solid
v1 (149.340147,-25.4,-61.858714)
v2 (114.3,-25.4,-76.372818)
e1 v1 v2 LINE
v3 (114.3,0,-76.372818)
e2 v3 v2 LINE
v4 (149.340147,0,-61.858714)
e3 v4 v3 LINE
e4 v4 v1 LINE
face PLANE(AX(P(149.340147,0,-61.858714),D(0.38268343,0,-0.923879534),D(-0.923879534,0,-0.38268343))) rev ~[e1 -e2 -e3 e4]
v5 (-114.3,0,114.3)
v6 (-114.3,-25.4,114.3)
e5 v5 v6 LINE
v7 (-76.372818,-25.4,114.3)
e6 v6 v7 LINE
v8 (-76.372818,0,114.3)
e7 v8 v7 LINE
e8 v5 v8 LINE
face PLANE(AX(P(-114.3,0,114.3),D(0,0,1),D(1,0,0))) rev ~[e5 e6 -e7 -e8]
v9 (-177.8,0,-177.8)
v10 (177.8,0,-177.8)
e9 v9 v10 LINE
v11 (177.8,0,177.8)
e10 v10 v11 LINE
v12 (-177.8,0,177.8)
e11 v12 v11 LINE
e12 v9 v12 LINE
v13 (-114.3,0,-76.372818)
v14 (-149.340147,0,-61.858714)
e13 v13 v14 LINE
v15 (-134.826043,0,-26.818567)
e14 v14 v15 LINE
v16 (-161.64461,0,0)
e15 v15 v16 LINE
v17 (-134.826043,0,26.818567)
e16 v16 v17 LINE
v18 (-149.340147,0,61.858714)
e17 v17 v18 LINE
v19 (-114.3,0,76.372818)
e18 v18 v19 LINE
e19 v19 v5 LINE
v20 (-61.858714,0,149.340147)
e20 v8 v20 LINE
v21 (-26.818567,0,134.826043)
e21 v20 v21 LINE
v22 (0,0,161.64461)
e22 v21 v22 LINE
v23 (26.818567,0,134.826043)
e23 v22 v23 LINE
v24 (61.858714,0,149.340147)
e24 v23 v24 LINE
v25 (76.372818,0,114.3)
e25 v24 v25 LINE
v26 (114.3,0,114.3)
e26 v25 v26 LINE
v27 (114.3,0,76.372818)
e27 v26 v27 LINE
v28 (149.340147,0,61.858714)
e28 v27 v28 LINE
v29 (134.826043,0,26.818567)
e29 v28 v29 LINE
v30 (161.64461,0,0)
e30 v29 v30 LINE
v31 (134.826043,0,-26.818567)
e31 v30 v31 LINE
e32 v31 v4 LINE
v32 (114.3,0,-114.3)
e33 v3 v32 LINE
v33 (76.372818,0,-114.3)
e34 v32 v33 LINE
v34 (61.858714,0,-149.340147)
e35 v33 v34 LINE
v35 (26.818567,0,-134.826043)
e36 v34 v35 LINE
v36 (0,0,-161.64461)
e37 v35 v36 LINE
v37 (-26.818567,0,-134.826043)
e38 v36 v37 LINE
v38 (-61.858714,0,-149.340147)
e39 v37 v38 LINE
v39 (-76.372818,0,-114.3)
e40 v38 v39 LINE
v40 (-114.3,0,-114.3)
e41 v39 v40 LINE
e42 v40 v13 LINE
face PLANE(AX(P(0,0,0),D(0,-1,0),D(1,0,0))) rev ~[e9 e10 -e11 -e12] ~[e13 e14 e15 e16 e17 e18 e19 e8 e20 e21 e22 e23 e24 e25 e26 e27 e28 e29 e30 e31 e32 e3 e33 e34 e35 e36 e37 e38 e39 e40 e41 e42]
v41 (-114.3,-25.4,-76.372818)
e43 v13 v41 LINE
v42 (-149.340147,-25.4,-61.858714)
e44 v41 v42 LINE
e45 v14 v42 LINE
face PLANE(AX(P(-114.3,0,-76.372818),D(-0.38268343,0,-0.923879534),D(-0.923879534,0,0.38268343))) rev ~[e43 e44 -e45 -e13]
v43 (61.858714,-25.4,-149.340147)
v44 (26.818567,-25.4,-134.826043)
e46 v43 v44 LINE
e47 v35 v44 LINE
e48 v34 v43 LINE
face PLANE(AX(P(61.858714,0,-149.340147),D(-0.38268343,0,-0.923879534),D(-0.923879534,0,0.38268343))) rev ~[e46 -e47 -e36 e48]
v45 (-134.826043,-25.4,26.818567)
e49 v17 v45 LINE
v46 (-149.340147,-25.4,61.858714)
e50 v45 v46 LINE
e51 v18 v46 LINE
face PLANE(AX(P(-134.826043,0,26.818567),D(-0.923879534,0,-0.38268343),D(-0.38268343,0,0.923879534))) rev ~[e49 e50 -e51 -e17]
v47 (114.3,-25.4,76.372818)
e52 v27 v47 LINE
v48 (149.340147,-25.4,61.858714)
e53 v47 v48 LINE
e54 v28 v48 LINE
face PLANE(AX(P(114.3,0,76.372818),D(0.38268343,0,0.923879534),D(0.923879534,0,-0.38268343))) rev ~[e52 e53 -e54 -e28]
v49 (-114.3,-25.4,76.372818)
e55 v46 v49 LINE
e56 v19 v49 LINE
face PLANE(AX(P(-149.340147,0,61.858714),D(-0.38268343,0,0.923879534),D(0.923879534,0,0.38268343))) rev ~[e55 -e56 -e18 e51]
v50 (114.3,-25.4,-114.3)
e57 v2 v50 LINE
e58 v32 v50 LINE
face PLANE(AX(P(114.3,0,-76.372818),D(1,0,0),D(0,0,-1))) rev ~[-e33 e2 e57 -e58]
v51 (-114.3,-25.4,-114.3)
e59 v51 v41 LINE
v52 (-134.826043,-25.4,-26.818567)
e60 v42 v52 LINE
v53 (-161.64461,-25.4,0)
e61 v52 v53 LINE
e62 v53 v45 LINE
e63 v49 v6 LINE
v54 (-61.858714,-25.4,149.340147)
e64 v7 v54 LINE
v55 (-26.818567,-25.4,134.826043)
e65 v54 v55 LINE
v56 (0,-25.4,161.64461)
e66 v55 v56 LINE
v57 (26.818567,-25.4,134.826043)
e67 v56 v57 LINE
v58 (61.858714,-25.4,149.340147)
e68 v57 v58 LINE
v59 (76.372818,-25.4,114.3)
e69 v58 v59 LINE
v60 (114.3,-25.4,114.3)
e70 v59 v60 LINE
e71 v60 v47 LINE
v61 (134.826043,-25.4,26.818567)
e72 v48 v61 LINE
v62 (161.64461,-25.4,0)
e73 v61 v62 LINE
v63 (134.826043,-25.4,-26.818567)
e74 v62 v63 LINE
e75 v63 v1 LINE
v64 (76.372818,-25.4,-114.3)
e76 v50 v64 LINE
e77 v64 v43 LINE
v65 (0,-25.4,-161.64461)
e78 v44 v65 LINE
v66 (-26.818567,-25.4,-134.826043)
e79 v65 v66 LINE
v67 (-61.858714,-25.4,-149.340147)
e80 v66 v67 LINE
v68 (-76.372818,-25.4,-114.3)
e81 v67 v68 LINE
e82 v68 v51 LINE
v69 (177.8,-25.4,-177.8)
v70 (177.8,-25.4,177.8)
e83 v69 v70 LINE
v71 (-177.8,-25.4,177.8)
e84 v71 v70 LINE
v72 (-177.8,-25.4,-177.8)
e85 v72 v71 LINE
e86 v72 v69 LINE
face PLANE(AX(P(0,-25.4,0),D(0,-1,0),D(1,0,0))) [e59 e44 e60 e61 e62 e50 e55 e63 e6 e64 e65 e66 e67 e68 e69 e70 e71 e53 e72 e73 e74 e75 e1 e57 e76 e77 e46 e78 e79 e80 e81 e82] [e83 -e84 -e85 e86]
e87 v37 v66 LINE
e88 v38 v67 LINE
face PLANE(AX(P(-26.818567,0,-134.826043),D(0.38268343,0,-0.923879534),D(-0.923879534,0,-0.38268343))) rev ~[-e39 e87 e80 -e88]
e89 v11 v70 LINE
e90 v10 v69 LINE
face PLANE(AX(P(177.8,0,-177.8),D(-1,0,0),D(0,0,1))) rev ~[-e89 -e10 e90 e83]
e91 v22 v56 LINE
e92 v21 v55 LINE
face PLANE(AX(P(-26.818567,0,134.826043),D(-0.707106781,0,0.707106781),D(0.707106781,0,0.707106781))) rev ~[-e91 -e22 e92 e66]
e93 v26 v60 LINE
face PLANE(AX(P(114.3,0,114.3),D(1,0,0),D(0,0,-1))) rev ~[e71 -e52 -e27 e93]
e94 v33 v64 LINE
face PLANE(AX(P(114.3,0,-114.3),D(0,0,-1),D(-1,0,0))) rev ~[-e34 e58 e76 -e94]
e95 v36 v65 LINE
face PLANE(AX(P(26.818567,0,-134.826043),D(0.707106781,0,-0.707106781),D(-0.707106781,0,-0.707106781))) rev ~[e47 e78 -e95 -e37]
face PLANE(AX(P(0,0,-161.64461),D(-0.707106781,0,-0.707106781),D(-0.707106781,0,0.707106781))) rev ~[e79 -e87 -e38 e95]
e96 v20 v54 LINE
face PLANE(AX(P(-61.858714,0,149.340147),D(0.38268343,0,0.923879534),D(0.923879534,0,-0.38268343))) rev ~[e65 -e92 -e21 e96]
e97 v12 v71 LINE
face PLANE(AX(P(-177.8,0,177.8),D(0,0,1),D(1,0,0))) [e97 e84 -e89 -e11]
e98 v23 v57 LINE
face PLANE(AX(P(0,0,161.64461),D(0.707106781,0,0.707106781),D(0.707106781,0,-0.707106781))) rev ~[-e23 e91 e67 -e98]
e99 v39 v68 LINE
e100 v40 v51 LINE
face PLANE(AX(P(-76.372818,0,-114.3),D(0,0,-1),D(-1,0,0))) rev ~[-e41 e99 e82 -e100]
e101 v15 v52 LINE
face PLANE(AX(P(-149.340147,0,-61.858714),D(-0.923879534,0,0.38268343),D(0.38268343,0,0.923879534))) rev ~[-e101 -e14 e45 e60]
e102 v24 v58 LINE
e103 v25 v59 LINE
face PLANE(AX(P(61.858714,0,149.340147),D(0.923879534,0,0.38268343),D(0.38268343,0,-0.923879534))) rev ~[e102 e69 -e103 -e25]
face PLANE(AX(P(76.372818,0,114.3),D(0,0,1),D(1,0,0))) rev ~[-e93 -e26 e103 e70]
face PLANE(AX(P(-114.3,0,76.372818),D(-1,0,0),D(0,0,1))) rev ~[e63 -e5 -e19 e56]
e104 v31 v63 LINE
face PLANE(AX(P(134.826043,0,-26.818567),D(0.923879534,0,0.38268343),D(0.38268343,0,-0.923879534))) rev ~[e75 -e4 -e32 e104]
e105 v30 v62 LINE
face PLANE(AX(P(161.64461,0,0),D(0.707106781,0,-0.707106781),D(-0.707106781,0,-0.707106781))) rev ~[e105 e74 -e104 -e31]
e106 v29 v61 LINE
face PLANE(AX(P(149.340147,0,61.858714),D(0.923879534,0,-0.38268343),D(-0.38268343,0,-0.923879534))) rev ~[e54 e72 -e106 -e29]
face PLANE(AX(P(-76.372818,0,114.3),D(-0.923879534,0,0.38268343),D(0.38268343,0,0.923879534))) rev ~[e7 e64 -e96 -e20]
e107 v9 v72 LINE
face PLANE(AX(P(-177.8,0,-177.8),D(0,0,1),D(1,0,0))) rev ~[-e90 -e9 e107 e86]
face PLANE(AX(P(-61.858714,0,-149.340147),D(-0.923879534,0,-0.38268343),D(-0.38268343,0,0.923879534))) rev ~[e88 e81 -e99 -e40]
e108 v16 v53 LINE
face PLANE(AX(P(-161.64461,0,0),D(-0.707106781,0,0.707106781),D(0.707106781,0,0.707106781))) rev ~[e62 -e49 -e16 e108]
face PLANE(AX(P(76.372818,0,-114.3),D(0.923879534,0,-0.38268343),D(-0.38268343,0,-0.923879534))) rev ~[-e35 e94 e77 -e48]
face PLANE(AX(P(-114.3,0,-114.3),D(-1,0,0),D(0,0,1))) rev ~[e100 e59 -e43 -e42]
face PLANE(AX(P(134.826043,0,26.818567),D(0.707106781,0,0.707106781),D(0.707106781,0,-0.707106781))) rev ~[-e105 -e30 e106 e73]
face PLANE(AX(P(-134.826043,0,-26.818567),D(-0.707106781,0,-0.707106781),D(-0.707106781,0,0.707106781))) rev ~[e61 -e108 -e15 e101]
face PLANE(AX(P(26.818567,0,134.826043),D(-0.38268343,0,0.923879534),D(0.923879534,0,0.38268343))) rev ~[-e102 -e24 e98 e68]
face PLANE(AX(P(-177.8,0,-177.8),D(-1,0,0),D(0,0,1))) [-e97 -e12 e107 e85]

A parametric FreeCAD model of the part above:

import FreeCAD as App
import Part
import Sketcher

V = App.Vector
Q = App.Units.Quantity

doc = App.newDocument("Part")
body = doc.addObject("PartDesign::Body", "Body")

sketch1 = body.newObject("Sketcher::SketchObject", "Sketch")
sketch1.AttachmentSupport = (doc.getObject("XZ_Plane"), [""])
sketch1.MapMode = "FlatFace"
sketch1.addGeometry([
    Part.LineSegment(V(-178, 178, 0), V(-178, -178, 0)),
    Part.LineSegment(V(-178, -178, 0), V(178, -178, 0)),
    Part.LineSegment(V(178, -178, 0), V(178, 178, 0)),
    Part.LineSegment(V(178, 178, 0), V(-178, 178, 0)),
    Part.LineSegment(V(62, 149, 0), V(76, 114, 0)),
    Part.LineSegment(V(76, 114, 0), V(114, 114, 0)),
    Part.LineSegment(V(114, 114, 0), V(114, 76, 0)),
    Part.LineSegment(V(114, 76, 0), V(149, 62, 0)),
    Part.LineSegment(V(149, 62, 0), V(135, 27, 0)),
    Part.LineSegment(V(135, 27, 0), V(162, 0, 0)),
    Part.LineSegment(V(162, 0, 0), V(135, -27, 0)),
    Part.LineSegment(V(135, -27, 0), V(149, -62, 0)),
    Part.LineSegment(V(149, -62, 0), V(114, -76, 0)),
    Part.LineSegment(V(114, -76, 0), V(114, -114, 0)),
    Part.LineSegment(V(114, -114, 0), V(76, -114, 0)),
    Part.LineSegment(V(76, -114, 0), V(62, -149, 0)),
    Part.LineSegment(V(62, -149, 0), V(27, -135, 0)),
    Part.LineSegment(V(27, -135, 0), V(0, -162, 0)),
    Part.LineSegment(V(0, -162, 0), V(-27, -135, 0)),
    Part.LineSegment(V(-27, -135, 0), V(-62, -149, 0)),
    Part.LineSegment(V(-62, -149, 0), V(-76, -114, 0)),
    Part.LineSegment(V(-76, -114, 0), V(-114, -114, 0)),
    Part.LineSegment(V(-114, -114, 0), V(-114, -76, 0)),
    Part.LineSegment(V(-114, -76, 0), V(-149, -62, 0)),
    Part.LineSegment(V(-149, -62, 0), V(-135, -27, 0)),
    Part.LineSegment(V(-135, -27, 0), V(-162, 0, 0)),
    Part.LineSegment(V(-162, 0, 0), V(-135, 27, 0)),
    Part.LineSegment(V(-135, 27, 0), V(-149, 62, 0)),
    Part.LineSegment(V(-149, 62, 0), V(-114, 76, 0)),
    Part.LineSegment(V(-114, 76, 0), V(-114, 114, 0)),
    Part.LineSegment(V(-114, 114, 0), V(-76, 114, 0)),
    Part.LineSegment(V(-76, 114, 0), V(-62, 149, 0)),
    Part.LineSegment(V(-62, 149, 0), V(-27, 135, 0)),
    Part.LineSegment(V(-27, 135, 0), V(0, 162, 0)),
    Part.LineSegment(V(0, 162, 0), V(27, 135, 0)),
    Part.LineSegment(V(27, 135, 0), V(62, 149, 0)),
], False)
sketch1.addConstraint([
    Sketcher.Constraint("Coincident", 0, 2, 1, 1),
    Sketcher.Constraint("Coincident", 1, 2, 2, 1),
    Sketcher.Constraint("Coincident", 2, 2, 3, 1),
    Sketcher.Constraint("Coincident", 3, 2, 0, 1),
    Sketcher.Constraint("Coincident", 4, 2, 5, 1),
    Sketcher.Constraint("Coincident", 5, 2, 6, 1),
    Sketcher.Constraint("Coincident", 6, 2, 7, 1),
    Sketcher.Constraint("Coincident", 7, 2, 8, 1),
    Sketcher.Constraint("Coincident", 8, 2, 9, 1),
    Sketcher.Constraint("Coincident", 9, 2, 10, 1),
    Sketcher.Constraint("Coincident", 10, 2, 11, 1),
    Sketcher.Constraint("Coincident", 11, 2, 12, 1),
    Sketcher.Constraint("Coincident", 12, 2, 13, 1),
    Sketcher.Constraint("Coincident", 13, 2, 14, 1),
    Sketcher.Constraint("Coincident", 14, 2, 15, 1),
    Sketcher.Constraint("Coincident", 15, 2, 16, 1),
    Sketcher.Constraint("Coincident", 16, 2, 17, 1),
    Sketcher.Constraint("Coincident", 17, 2, 18, 1),
    Sketcher.Constraint("Coincident", 18, 2, 19, 1),
    Sketcher.Constraint("Coincident", 19, 2, 20, 1),
    Sketcher.Constraint("Coincident", 20, 2, 21, 1),
    Sketcher.Constraint("Coincident", 21, 2, 22, 1),
    Sketcher.Constraint("Coincident", 22, 2, 23, 1),
    Sketcher.Constraint("Coincident", 23, 2, 24, 1),
    Sketcher.Constraint("Coincident", 24, 2, 25, 1),
    Sketcher.Constraint("Coincident", 25, 2, 26, 1),
    Sketcher.Constraint("Coincident", 26, 2, 27, 1),
    Sketcher.Constraint("Coincident", 27, 2, 28, 1),
    Sketcher.Constraint("Coincident", 28, 2, 29, 1),
    Sketcher.Constraint("Coincident", 29, 2, 30, 1),
    Sketcher.Constraint("Coincident", 30, 2, 31, 1),
    Sketcher.Constraint("Coincident", 31, 2, 32, 1),
    Sketcher.Constraint("Coincident", 32, 2, 33, 1),
    Sketcher.Constraint("Coincident", 33, 2, 34, 1),
    Sketcher.Constraint("Coincident", 34, 2, 35, 1),
    Sketcher.Constraint("Coincident", 35, 2, 4, 1),
    Sketcher.Constraint("Vertical", 0),
    Sketcher.Constraint("Horizontal", 1),
    Sketcher.Constraint("Vertical", 2),
    Sketcher.Constraint("Horizontal", 3),
    Sketcher.Constraint("Horizontal", 5),
    Sketcher.Constraint("Vertical", 6),
    Sketcher.Constraint("Vertical", 13),
    Sketcher.Constraint("Horizontal", 14),
    Sketcher.Constraint("Horizontal", 21),
    Sketcher.Constraint("Vertical", 22),
    Sketcher.Constraint("Vertical", 29),
    Sketcher.Constraint("Horizontal", 30),
    Sketcher.Constraint("Symmetric", 0, 2, 2, 2, -1, 1),
    Sketcher.Constraint("Symmetric", 4, 2, 20, 2, -1, 1),
    Sketcher.Constraint("Symmetric", 6, 2, 22, 2, -1, 1),
    Sketcher.Constraint("Symmetric", 7, 2, 23, 2, -1, 1),
    Sketcher.Constraint("Symmetric", 8, 2, 24, 2, -1, 1),
    Sketcher.Constraint("Symmetric", 9, 2, 25, 2, -1, 1),
    Sketcher.Constraint("Symmetric", 10, 2, 26, 2, -1, 1),
    Sketcher.Constraint("Symmetric", 11, 2, 27, 2, -1, 1),
    Sketcher.Constraint("Symmetric", 12, 2, 28, 2, -1, 1),
    Sketcher.Constraint("Symmetric", 14, 2, 30, 2, -1, 1),
    Sketcher.Constraint("Symmetric", 15, 2, 31, 2, -1, 1),
    Sketcher.Constraint("Symmetric", 16, 2, 32, 2, -1, 1),
    Sketcher.Constraint("Symmetric", 17, 2, 33, 2, -1, 1),
    Sketcher.Constraint("Symmetric", 18, 2, 34, 2, -1, 1),
    Sketcher.Constraint("Symmetric", 19, 2, 35, 2, -1, 1),
    Sketcher.Constraint("Symmetric", 16, 2, 18, 2, -2),
    Sketcher.Constraint("Symmetric", 15, 2, 19, 2, -2),
    Sketcher.Constraint("Symmetric", 14, 2, 20, 2, -2),
    Sketcher.Constraint("Symmetric", 12, 2, 22, 2, -2),
    Sketcher.Constraint("Symmetric", 11, 2, 23, 2, -2),
    Sketcher.Constraint("Symmetric", 10, 2, 24, 2, -2),
    Sketcher.Constraint("PointOnObject", 9, 2, -1),
    Sketcher.Constraint("PointOnObject", 17, 2, -2),
    Sketcher.Constraint("Perpendicular", 7, 8),
    Sketcher.Constraint("Perpendicular", 9, 10),
    Sketcher.Constraint("Parallel", 4, 11),
    Sketcher.Constraint("Perpendicular", 15, 16),
    Sketcher.Constraint("Parallel", 10, 17),
    Sketcher.Constraint("Equal", 3, 0),
    Sketcher.Constraint("Equal", 30, 6),
    Sketcher.Constraint("Equal", 4, 7),
    Sketcher.Constraint("Equal", 7, 8),
    Sketcher.Constraint("Equal", 8, 9),
    Sketcher.Constraint("Equal", 15, 16),
    Sketcher.Constraint("Equal", 16, 17),
    Sketcher.Constraint("DistanceX", 1, 1, 1, 2, Q("14 in")),
    Sketcher.Constraint("DistanceY", -1, 1, 4, 2, Q("4.5 in")),
    Sketcher.Constraint("Angle", 4, Q("-67.5 deg")),
    Sketcher.Constraint("Distance", 4, Q("37.927182 mm")),
])
pad1 = body.newObject("PartDesign::Pad", "Pad")
pad1.Profile = sketch1
pad1.Length = Q("1 in")

doc.recompute()
